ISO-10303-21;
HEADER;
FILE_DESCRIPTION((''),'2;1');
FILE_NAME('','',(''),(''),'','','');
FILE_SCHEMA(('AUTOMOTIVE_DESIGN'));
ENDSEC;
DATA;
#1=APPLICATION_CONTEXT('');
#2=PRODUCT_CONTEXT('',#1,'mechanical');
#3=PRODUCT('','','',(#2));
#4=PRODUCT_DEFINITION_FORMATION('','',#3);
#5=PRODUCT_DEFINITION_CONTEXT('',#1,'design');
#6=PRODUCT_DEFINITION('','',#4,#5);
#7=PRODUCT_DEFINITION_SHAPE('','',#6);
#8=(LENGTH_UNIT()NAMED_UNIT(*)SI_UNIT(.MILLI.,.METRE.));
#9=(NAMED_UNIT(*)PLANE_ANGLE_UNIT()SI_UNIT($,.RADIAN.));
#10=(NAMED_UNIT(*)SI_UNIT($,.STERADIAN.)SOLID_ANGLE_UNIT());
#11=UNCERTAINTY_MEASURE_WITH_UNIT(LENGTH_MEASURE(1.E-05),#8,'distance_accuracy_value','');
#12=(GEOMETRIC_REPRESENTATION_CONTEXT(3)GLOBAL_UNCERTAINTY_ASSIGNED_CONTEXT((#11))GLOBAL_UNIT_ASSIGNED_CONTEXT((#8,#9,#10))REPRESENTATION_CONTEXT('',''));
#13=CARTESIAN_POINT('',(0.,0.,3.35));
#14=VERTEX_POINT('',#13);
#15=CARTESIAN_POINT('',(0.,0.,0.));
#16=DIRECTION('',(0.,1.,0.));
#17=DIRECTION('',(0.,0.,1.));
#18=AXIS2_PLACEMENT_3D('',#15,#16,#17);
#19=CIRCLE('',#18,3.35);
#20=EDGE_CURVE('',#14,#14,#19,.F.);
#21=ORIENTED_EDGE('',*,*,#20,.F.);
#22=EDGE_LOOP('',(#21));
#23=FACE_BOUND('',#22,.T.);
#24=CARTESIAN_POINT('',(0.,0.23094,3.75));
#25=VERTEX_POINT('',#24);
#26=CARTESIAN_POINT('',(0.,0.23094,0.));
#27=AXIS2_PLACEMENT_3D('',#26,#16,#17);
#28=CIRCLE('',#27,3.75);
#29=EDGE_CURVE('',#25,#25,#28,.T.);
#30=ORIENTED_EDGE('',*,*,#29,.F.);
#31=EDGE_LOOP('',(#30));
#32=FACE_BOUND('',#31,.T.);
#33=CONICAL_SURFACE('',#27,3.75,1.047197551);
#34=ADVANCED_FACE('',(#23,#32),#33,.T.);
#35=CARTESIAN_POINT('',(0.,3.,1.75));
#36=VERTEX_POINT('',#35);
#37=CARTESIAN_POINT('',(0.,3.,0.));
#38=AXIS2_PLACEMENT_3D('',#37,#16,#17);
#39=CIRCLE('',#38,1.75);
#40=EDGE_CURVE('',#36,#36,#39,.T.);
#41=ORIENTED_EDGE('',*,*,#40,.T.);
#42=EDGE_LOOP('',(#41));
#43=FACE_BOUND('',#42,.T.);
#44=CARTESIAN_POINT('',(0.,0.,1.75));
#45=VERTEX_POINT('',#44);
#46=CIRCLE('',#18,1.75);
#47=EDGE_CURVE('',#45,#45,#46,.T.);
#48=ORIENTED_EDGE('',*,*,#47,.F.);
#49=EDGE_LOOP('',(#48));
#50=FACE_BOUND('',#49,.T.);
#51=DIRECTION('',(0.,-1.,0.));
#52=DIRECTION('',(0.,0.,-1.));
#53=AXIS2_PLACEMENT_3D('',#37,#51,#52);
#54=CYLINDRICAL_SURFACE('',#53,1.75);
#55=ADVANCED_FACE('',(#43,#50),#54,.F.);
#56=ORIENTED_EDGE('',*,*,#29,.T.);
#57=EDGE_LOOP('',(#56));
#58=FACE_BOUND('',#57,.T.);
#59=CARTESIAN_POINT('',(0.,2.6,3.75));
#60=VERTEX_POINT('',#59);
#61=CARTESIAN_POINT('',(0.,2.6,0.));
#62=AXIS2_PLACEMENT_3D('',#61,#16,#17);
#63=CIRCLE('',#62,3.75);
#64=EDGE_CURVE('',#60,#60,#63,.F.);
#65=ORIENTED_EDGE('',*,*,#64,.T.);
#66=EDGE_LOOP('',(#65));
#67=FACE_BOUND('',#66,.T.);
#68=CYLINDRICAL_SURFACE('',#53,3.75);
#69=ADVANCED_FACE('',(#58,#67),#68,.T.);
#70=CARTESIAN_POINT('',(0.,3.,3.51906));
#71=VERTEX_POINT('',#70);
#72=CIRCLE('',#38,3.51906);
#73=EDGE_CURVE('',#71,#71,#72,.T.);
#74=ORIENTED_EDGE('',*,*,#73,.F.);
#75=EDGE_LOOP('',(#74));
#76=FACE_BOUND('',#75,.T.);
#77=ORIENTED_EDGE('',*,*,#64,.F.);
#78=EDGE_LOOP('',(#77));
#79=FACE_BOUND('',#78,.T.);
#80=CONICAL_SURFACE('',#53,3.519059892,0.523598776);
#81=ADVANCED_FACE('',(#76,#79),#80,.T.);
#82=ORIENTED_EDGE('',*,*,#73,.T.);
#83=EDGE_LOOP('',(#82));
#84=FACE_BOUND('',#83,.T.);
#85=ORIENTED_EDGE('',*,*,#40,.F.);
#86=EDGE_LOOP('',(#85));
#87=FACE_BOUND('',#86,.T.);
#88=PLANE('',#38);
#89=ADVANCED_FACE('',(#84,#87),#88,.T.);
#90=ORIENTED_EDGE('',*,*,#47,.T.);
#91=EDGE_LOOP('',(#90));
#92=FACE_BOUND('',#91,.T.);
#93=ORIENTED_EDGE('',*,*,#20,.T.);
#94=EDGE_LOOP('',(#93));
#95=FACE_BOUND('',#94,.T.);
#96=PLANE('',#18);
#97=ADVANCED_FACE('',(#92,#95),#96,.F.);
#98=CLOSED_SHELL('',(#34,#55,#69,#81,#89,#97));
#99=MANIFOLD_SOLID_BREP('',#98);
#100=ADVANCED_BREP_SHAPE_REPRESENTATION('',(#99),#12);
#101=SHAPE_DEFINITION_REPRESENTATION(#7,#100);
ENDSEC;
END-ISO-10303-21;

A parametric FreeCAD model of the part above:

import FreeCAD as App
import Part
import Sketcher
from FreeCAD import Vector
Q = App.Units.Quantity


def edges_at(feature, points):
    """Names of the edges that pass closest to the given points."""
    edges = feature.Shape.Edges
    near = lambda p: min(range(len(edges)), key=lambda i: edges[i].distToShape(Part.Vertex(*p))[0])
    return sorted({f"Edge{near(p) + 1}" for p in points})

doc = App.newDocument("Part")
body = doc.addObject("PartDesign::Body", "Body")

# Sketch on XZ plane
sketch1 = body.newObject("Sketcher::SketchObject", "Sketch")
sketch1.AttachmentSupport = (doc.getObject("XZ_Plane"), [""])
sketch1.MapMode = "FlatFace"
sketch1.addGeometry(Part.Circle(Vector(0, 0, 0), Vector(0, 0, 1), 3.75), False)
sketch1.addGeometry(Part.Circle(Vector(0, 0, 0), Vector(0, 0, 1), 1.75), False)
sketch1.addConstraint(Sketcher.Constraint("Coincident", 0, 3, -1, 1))
sketch1.addConstraint(Sketcher.Constraint("Coincident", 1, 3, -1, 1))
sketch1.addConstraint(Sketcher.Constraint("Diameter", 0, Q("7.5 mm")))
sketch1.addConstraint(Sketcher.Constraint("Diameter", 1, Q("3.5 mm")))
pad1 = body.newObject("PartDesign::Pad", "Pad")
pad1.Profile = sketch1
pad1.Length = 3
pad1.Reversed = True
doc.recompute()

chamfer = body.newObject("PartDesign::Chamfer", "Chamfer")
chamfer.Base = (pad1, edges_at(pad1, [(-3.75, 0, 0)]))
chamfer.ChamferType = "Two distances"
chamfer.Size = 0.4
chamfer.Size2 = 0.23094
chamfer.FlipDirection = True
doc.recompute()

chamfer2 = body.newObject("PartDesign::Chamfer", "Chamfer001")
chamfer2.Base = (chamfer, edges_at(chamfer, [(-3.75, 3, 0)]))
chamfer2.ChamferType = "Two distances"
chamfer2.Size = 0.4
chamfer2.Size2 = 0.23094

doc.recompute()
